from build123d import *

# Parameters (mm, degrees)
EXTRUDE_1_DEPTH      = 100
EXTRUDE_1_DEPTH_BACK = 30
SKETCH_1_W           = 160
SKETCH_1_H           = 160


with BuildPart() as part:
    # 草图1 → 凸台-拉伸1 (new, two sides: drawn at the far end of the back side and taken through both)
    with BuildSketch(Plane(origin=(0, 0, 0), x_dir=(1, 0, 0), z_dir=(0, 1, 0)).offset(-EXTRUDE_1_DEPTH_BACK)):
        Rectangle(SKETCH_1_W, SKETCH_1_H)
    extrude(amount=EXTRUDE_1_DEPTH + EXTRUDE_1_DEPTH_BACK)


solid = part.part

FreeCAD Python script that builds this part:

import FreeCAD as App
import Part
import Sketcher
from FreeCAD import Vector
Q = App.Units.Quantity

doc = App.newDocument("Part")
body = doc.addObject("PartDesign::Body", "Body")

# Sketch on XZ plane
sketch1 = body.newObject("Sketcher::SketchObject", "Sketch")
sketch1.AttachmentSupport = (doc.getObject("XZ_Plane"), [""])
sketch1.MapMode = "FlatFace"
sketch1.addGeometry([
    Part.LineSegment(Vector(-80, -80, 0), Vector(-80, 80, 0)),
    Part.LineSegment(Vector(-80, 80, 0), Vector(80, 80, 0)),
    Part.LineSegment(Vector(80, 80, 0), Vector(80, -80, 0)),
    Part.LineSegment(Vector(80, -80, 0), Vector(-80, -80, 0)),
], False)
sketch1.addConstraint([
    Sketcher.Constraint("Coincident", 0, 2, 1, 1),
    Sketcher.Constraint("Coincident", 1, 2, 2, 1),
    Sketcher.Constraint("Coincident", 2, 2, 3, 1),
    Sketcher.Constraint("Coincident", 3, 2, 0, 1),
    Sketcher.Constraint("Vertical", 0),
    Sketcher.Constraint("Horizontal", 1),
    Sketcher.Constraint("Vertical", 2),
    Sketcher.Constraint("Horizontal", 3),
    Sketcher.Constraint("Symmetric", 0, 2, 2, 2, -1, 1),
    Sketcher.Constraint("Equal", 3, 0),
    Sketcher.Constraint("DistanceX", 1, 1, 1, 2, Q("160 mm")),
])
pad1 = body.newObject("PartDesign::Pad", "Pad")
pad1.Profile = sketch1
pad1.Type = "TwoLengths"
pad1.Length = 100
pad1.Length2 = 30
pad1.Reversed = True

doc.recompute()
